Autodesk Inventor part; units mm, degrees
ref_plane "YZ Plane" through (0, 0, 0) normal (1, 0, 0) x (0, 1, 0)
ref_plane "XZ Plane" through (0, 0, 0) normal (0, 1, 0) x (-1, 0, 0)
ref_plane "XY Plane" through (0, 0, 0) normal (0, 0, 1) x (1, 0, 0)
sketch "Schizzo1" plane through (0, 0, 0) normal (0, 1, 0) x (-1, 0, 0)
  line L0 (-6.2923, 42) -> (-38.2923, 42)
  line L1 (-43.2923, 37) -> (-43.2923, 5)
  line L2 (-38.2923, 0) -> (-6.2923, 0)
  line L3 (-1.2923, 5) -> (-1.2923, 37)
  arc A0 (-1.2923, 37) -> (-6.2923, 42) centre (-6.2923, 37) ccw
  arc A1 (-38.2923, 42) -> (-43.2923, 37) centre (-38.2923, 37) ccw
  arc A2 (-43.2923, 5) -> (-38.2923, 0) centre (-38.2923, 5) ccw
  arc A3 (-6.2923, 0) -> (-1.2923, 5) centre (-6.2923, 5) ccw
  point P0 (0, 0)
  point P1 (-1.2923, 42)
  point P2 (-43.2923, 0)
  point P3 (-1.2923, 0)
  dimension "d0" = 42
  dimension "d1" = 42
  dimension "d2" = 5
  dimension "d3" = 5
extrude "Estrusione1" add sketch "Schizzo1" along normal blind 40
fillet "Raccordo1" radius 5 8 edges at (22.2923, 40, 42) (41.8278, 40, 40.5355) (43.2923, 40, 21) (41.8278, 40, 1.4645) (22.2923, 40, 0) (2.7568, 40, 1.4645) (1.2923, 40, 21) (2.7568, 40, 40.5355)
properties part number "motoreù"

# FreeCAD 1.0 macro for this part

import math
import FreeCAD as App
import Part
import Sketcher
from FreeCAD import Vector
Q = App.Units.Quantity


def edges_at(feature, points):
    """Names of the edges that pass closest to the given points."""
    edges = feature.Shape.Edges
    near = lambda p: min(range(len(edges)), key=lambda i: edges[i].distToShape(Part.Vertex(*p))[0])
    return sorted({f"Edge{near(p) + 1}" for p in points})

doc = App.newDocument("Part")
params = doc.addObject("Spreadsheet::Sheet", "Params")
for row, (alias, value) in enumerate([
    ("sketch1_radius", "5 mm"),
    ("pad1_length", "40 mm"),
    ("fillet_radius", "5 mm"),
], start=1):
    params.set(f"A{row}", alias)
    params.set(f"B{row}", "=" + value)
    params.setAlias(f"B{row}", alias)

body = doc.addObject("PartDesign::Body", "Body")

sketch1 = body.newObject("Sketcher::SketchObject", "Sketch")
sketch1.AttachmentSupport = (doc.getObject("XZ_Plane"), [""])
sketch1.MapMode = "FlatFace"
sketch1.addGeometry([
    Part.ArcOfCircle(Part.Circle(Vector(6.2923, 37, 0), Vector(0, 0, 1), 5), math.radians(90), math.radians(180)),
    Part.LineSegment(Vector(6.2923, 42, 0), Vector(38.2923, 42, 0)),
    Part.ArcOfCircle(Part.Circle(Vector(38.2923, 37, 0), Vector(0, 0, 1), 5), math.radians(0), math.radians(90)),
    Part.LineSegment(Vector(43.2923, 37, 0), Vector(43.2923, 5, 0)),
    Part.ArcOfCircle(Part.Circle(Vector(38.2923, 5, 0), Vector(0, 0, 1), 5), math.radians(-90), math.radians(0)),
    Part.LineSegment(Vector(38.2923, 0, 0), Vector(6.2923, 0, 0)),
    Part.ArcOfCircle(Part.Circle(Vector(6.2923, 5, 0), Vector(0, 0, 1), 5), math.radians(180), math.radians(270)),
    Part.LineSegment(Vector(1.2923, 5, 0), Vector(1.2923, 37, 0)),
], False)
sketch1.addConstraint([
    Sketcher.Constraint("Tangent", 0, 1, 1, 1),
    Sketcher.Constraint("Tangent", 1, 2, 2, 2),
    Sketcher.Constraint("Tangent", 2, 1, 3, 1),
    Sketcher.Constraint("Tangent", 3, 2, 4, 2),
    Sketcher.Constraint("Tangent", 4, 1, 5, 1),
    Sketcher.Constraint("Tangent", 5, 2, 6, 2),
    Sketcher.Constraint("Tangent", 6, 1, 7, 1),
    Sketcher.Constraint("Tangent", 7, 2, 0, 2),
    Sketcher.Constraint("Horizontal", 1),
    Sketcher.Constraint("Vertical", 3),
    Sketcher.Constraint("Horizontal", 5),
    Sketcher.Constraint("Vertical", 7),
    Sketcher.Constraint("Equal", 0, 2),
    Sketcher.Constraint("Equal", 2, 4),
    Sketcher.Constraint("Equal", 4, 6),
    Sketcher.Constraint("PointOnObject", 4, 1, -1),
    Sketcher.Constraint("Equal", 5, 3),
    Sketcher.Constraint("Radius", 0, Q("5 mm")),
    Sketcher.Constraint("DistanceY", -1, 1, 0, 1, Q("42 mm")),
    Sketcher.Constraint("DistanceX", -1, 1, 0, 3, Q("6.2923 mm")),
])
sketch1.setExpression("Constraints[17]", "Params.sketch1_radius")
pad1 = body.newObject("PartDesign::Pad", "Pad")
pad1.Profile = sketch1
pad1.setExpression("Length", "Params.pad1_length")
pad1.Reversed = True
doc.recompute()

fillet = body.newObject("PartDesign::Fillet", "Fillet")
fillet.Base = (pad1, edges_at(pad1, [
    (22.292, 40, 42),
    (41.828, 40, 40.535),
    (43.292, 40, 21),
    (41.828, 40, 1.464),
    (22.292, 40, 0),
    (2.757, 40, 1.464),
    (1.292, 40, 21),
    (2.757, 40, 40.535),
]))
fillet.setExpression("Radius", "Params.fillet_radius")

doc.recompute()
